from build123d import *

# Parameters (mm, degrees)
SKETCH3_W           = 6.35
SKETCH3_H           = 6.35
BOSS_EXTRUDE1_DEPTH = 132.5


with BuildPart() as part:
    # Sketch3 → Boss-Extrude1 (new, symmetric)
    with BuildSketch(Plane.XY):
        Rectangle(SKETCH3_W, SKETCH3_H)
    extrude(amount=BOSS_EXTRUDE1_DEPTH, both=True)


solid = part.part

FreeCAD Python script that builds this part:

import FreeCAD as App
import Part
import Sketcher
Q = App.Units.Quantity


def add_polygon(sketch, points):
    """Adds a closed chain of lines whose ends are joined by coincident constraints."""
    first, n = sketch.GeometryCount, len(points)
    for a, b in zip(points, points[1:] + points[:1]):
        sketch.addGeometry(Part.LineSegment(App.Vector(*a, 0), App.Vector(*b, 0)), False)
    for i in range(n):
        sketch.addConstraint(Sketcher.Constraint("Coincident", first + i, 2, first + (i + 1) % n, 1))

doc = App.newDocument("Part")
body = doc.addObject("PartDesign::Body", "Body")

# Sketch on XY plane
sketch1 = body.newObject("Sketcher::SketchObject", "Sketch")
sketch1.AttachmentSupport = (doc.getObject("XY_Plane"), [""])
sketch1.MapMode = "FlatFace"
add_polygon(sketch1, [(-3, 3), (-3, -3), (3, -3), (3, 3)])  # lines 0-3
sketch1.addConstraint([
    Sketcher.Constraint("Vertical", 0),
    Sketcher.Constraint("Horizontal", 1),
    Sketcher.Constraint("Vertical", 2),
    Sketcher.Constraint("Horizontal", 3),
    Sketcher.Constraint("Symmetric", 0, 2, 2, 2, -1, 1),
    Sketcher.Constraint("Equal", 3, 0),
    Sketcher.Constraint("DistanceX", 1, 1, 1, 2, Q("6.35 mm")),
])
pad1 = body.newObject("PartDesign::Pad", "Pad")
pad1.Profile = sketch1
pad1.Length = 265
pad1.Midplane = True

doc.recompute()
